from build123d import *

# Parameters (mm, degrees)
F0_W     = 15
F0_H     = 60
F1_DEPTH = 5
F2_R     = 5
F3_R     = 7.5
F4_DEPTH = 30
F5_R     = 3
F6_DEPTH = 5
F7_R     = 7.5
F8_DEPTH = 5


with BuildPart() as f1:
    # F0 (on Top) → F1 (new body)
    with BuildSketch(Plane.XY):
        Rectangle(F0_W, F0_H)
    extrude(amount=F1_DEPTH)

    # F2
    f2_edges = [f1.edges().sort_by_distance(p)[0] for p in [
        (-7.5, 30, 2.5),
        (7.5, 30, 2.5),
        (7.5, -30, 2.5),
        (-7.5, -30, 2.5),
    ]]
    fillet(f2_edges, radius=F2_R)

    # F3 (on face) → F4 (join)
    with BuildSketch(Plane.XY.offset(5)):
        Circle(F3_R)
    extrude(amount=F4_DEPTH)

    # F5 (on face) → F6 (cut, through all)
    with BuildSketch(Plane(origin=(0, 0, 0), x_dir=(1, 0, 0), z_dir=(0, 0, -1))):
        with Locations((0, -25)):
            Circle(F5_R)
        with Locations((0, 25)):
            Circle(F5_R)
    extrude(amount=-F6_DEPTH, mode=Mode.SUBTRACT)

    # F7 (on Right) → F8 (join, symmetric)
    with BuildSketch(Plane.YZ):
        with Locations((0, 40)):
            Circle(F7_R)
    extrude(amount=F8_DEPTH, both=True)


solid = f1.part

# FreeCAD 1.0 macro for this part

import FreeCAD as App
import Part
import Sketcher
Q = App.Units.Quantity


def edges_at(feature, points):
    """Names of the edges that pass closest to the given points."""
    edges = feature.Shape.Edges
    near = lambda p: min(range(len(edges)), key=lambda i: edges[i].distToShape(Part.Vertex(*p))[0])
    return sorted({f"Edge{near(p) + 1}" for p in points})

doc = App.newDocument("Part")
body = doc.addObject("PartDesign::Body", "Body")

# Sketch on XY plane
sketch1 = body.newObject("Sketcher::SketchObject", "Sketch")
sketch1.AttachmentSupport = (doc.getObject("XY_Plane"), [""])
sketch1.MapMode = "FlatFace"
sketch1.addGeometry([
    Part.LineSegment(App.Vector(-8, 30, 0), App.Vector(-8, -30, 0)),
    Part.LineSegment(App.Vector(-8, -30, 0), App.Vector(8, -30, 0)),
    Part.LineSegment(App.Vector(8, -30, 0), App.Vector(8, 30, 0)),
    Part.LineSegment(App.Vector(8, 30, 0), App.Vector(-8, 30, 0)),
], False)
sketch1.addConstraint([
    Sketcher.Constraint("Coincident", 0, 2, 1, 1),
    Sketcher.Constraint("Coincident", 1, 2, 2, 1),
    Sketcher.Constraint("Coincident", 2, 2, 3, 1),
    Sketcher.Constraint("Coincident", 3, 2, 0, 1),
    Sketcher.Constraint("Vertical", 0),
    Sketcher.Constraint("Horizontal", 1),
    Sketcher.Constraint("Vertical", 2),
    Sketcher.Constraint("Horizontal", 3),
    Sketcher.Constraint("Symmetric", 0, 2, 2, 2, -1, 1),
    Sketcher.Constraint("DistanceX", 1, 1, 1, 2, Q("15 mm")),
    Sketcher.Constraint("DistanceY", 0, 2, 0, 1, Q("60 mm")),
])
pad1 = body.newObject("PartDesign::Pad", "Pad")
pad1.Profile = sketch1
pad1.Length = 5
doc.recompute()

fillet = body.newObject("PartDesign::Fillet", "Fillet")
fillet.Base = (pad1, edges_at(pad1, [
    (-7.5, 30, 2.5),
    (7.5, 30, 2.5),
    (7.5, -30, 2.5),
    (-7.5, -30, 2.5),
]))
fillet.Radius = 5

# Sketch on XY plane
sketch2 = body.newObject("Sketcher::SketchObject", "Sketch001")
sketch2.AttachmentSupport = (doc.getObject("XY_Plane"), [""])
sketch2.MapMode = "FlatFace"
sketch2.AttachmentOffset = App.Placement(App.Vector(0, 0, 5), App.Rotation())
sketch2.addGeometry(Part.Circle(App.Vector(0, 0, 0), App.Vector(0, 0, 1), 8), False)
sketch2.addConstraint([
    Sketcher.Constraint("Coincident", 0, 3, -1, 1),
    Sketcher.Constraint("Diameter", 0, Q("15 mm")),
])
pad2 = body.newObject("PartDesign::Pad", "Pad001")
pad2.Profile = sketch2
pad2.Length = 30

# Sketch on XY plane
sketch3 = body.newObject("Sketcher::SketchObject", "Sketch002")
sketch3.AttachmentSupport = (doc.getObject("XY_Plane"), [""])
sketch3.MapMode = "FlatFace"
sketch3.addGeometry([
    Part.Circle(App.Vector(0, 25, 0), App.Vector(0, 0, 1), 3),
    Part.Circle(App.Vector(0, -25, 0), App.Vector(0, 0, 1), 3),
], False)
sketch3.addConstraint([
    Sketcher.Constraint("Equal", 0, 1),
    Sketcher.Constraint("Symmetric", 0, 3, 1, 3, -1, 1),
    Sketcher.Constraint("PointOnObject", 0, 3, -2),
    Sketcher.Constraint("Diameter", 0, Q("6 mm")),
    Sketcher.Constraint("DistanceY", -1, 1, 0, 3, Q("25 mm")),
])
pocket1 = body.newObject("PartDesign::Pocket", "Pocket")
pocket1.Profile = sketch3
pocket1.Type = "ThroughAll"
pocket1.Reversed = True

# Sketch on YZ plane
sketch4 = body.newObject("Sketcher::SketchObject", "Sketch003")
sketch4.AttachmentSupport = (doc.getObject("YZ_Plane"), [""])
sketch4.MapMode = "FlatFace"
sketch4.addGeometry(Part.Circle(App.Vector(0, 40, 0), App.Vector(0, 0, 1), 8), False)
sketch4.addConstraint([
    Sketcher.Constraint("PointOnObject", 0, 3, -2),
    Sketcher.Constraint("Diameter", 0, Q("15 mm")),
    Sketcher.Constraint("DistanceY", -1, 1, 0, 3, Q("40 mm")),
])
pad3 = body.newObject("PartDesign::Pad", "Pad002")
pad3.Profile = sketch4
pad3.Length = 10
pad3.Midplane = True

doc.recompute()
